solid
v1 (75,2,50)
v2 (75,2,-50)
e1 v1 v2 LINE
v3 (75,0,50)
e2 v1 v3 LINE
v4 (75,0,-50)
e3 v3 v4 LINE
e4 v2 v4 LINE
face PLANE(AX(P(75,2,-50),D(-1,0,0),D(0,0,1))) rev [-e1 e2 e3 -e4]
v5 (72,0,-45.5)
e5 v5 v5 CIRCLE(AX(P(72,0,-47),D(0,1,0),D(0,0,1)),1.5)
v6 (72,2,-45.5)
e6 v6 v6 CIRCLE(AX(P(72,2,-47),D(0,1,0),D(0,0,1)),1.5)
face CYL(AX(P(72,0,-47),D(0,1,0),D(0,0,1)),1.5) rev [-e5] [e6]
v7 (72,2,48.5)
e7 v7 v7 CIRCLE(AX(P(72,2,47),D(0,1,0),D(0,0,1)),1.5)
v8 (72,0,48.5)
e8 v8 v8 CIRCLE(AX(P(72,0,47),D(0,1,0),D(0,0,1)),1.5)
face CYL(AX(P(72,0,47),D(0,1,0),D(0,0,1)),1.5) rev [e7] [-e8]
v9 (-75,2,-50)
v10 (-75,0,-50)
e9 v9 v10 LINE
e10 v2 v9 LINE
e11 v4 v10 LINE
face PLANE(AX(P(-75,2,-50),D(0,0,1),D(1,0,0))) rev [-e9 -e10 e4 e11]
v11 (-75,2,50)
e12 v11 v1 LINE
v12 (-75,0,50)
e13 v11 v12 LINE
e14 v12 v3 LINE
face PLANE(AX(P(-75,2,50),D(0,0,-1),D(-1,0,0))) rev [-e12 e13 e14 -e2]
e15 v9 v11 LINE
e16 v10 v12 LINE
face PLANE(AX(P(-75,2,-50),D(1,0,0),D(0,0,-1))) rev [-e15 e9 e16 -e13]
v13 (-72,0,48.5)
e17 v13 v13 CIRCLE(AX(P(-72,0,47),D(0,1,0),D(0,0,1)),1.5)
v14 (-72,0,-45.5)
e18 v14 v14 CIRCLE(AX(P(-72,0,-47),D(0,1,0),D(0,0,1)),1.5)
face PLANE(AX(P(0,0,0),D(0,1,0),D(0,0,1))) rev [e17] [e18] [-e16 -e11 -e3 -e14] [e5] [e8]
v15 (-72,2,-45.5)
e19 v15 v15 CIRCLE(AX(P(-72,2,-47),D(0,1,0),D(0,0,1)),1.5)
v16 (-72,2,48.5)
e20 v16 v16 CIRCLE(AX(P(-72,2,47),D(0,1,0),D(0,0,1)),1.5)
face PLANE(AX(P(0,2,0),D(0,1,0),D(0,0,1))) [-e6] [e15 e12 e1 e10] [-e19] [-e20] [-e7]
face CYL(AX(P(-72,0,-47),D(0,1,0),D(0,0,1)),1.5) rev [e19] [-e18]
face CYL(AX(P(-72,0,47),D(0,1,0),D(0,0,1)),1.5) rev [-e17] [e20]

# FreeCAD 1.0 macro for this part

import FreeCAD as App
import Part
import Sketcher
Q = App.Units.Quantity

doc = App.newDocument("Part")
params = doc.addObject("Spreadsheet::Sheet", "Params")
for row, (alias, value) in enumerate([
    ("sketch1_width", "150 mm"),
    ("sketch1_height", "100 mm"),
    ("pad1_length", "2 mm"),
    ("sketch2_diameter", "3 mm"),
], start=1):
    params.set(f"A{row}", alias)
    params.set(f"B{row}", "=" + value)
    params.setAlias(f"B{row}", alias)

body = doc.addObject("PartDesign::Body", "Body")

# Sketch on XZ plane
sketch1 = doc.addObject("Sketcher::SketchObject", "Sketch")
body.addObject(sketch1)
sketch1.AttachmentSupport = (doc.XZ_Plane, [""])
sketch1.MapMode = "FlatFace"
sketch1.addGeometry([
    Part.LineSegment(App.Vector(-75, -50, 0), App.Vector(-75, 50, 0)),
    Part.LineSegment(App.Vector(-75, 50, 0), App.Vector(75, 50, 0)),
    Part.LineSegment(App.Vector(75, 50, 0), App.Vector(75, -50, 0)),
    Part.LineSegment(App.Vector(75, -50, 0), App.Vector(-75, -50, 0)),
], False)
sketch1.addConstraint([
    Sketcher.Constraint("Coincident", 0, 2, 1, 1),
    Sketcher.Constraint("Coincident", 1, 2, 2, 1),
    Sketcher.Constraint("Coincident", 2, 2, 3, 1),
    Sketcher.Constraint("Coincident", 3, 2, 0, 1),
    Sketcher.Constraint("Vertical", 0),
    Sketcher.Constraint("Horizontal", 1),
    Sketcher.Constraint("Vertical", 2),
    Sketcher.Constraint("Horizontal", 3),
    Sketcher.Constraint("Symmetric", 0, 2, 2, 2, -1, 1),
    Sketcher.Constraint("DistanceX", 1, 1, 1, 2, Q("150 mm")),
    Sketcher.Constraint("DistanceY", 0, 1, 0, 2, Q("100 mm")),
])
sketch1.setExpression("Constraints[9]", "Params.sketch1_width")
sketch1.setExpression("Constraints[10]", "Params.sketch1_height")
pad1 = doc.addObject("PartDesign::Pad", "Pad")
body.addObject(pad1)
pad1.Profile = sketch1
pad1.setExpression("Length", "Params.pad1_length")
pad1.Reversed = True

# Sketch on XZ plane
sketch2 = doc.addObject("Sketcher::SketchObject", "Sketch001")
body.addObject(sketch2)
sketch2.AttachmentSupport = (doc.XZ_Plane, [""])
sketch2.MapMode = "FlatFace"
sketch2.AttachmentOffset = App.Placement(App.Vector(0, 0, -2), App.Rotation())
sketch2.addGeometry([
    Part.Circle(App.Vector(-72, -47, 0), App.Vector(0, 0, 1), 1.5),
    Part.Circle(App.Vector(-72, 47, 0), App.Vector(0, 0, 1), 1.5),
    Part.Circle(App.Vector(72, 47, 0), App.Vector(0, 0, 1), 1.5),
    Part.Circle(App.Vector(72, -47, 0), App.Vector(0, 0, 1), 1.5),
], False)
sketch2.addConstraint([
    Sketcher.Constraint("Equal", 0, 1),
    Sketcher.Constraint("Equal", 1, 2),
    Sketcher.Constraint("Equal", 2, 3),
    Sketcher.Constraint("Symmetric", 0, 3, 2, 3, -1, 1),
    Sketcher.Constraint("Symmetric", 1, 3, 3, 3, -1, 1),
    Sketcher.Constraint("Symmetric", 1, 3, 2, 3, -2),
    Sketcher.Constraint("Diameter", 0, Q("3 mm")),
    Sketcher.Constraint("DistanceX", 0, 3, -1, 1, Q("72 mm")),
    Sketcher.Constraint("DistanceY", 0, 3, -1, 1, Q("47 mm")),
])
sketch2.setExpression("Constraints[6]", "Params.sketch2_diameter")
pocket1 = doc.addObject("PartDesign::Pocket", "Pocket")
body.addObject(pocket1)
pocket1.Profile = sketch2
pocket1.Type = "ThroughAll"
pocket1.Reversed = True

doc.recompute()
